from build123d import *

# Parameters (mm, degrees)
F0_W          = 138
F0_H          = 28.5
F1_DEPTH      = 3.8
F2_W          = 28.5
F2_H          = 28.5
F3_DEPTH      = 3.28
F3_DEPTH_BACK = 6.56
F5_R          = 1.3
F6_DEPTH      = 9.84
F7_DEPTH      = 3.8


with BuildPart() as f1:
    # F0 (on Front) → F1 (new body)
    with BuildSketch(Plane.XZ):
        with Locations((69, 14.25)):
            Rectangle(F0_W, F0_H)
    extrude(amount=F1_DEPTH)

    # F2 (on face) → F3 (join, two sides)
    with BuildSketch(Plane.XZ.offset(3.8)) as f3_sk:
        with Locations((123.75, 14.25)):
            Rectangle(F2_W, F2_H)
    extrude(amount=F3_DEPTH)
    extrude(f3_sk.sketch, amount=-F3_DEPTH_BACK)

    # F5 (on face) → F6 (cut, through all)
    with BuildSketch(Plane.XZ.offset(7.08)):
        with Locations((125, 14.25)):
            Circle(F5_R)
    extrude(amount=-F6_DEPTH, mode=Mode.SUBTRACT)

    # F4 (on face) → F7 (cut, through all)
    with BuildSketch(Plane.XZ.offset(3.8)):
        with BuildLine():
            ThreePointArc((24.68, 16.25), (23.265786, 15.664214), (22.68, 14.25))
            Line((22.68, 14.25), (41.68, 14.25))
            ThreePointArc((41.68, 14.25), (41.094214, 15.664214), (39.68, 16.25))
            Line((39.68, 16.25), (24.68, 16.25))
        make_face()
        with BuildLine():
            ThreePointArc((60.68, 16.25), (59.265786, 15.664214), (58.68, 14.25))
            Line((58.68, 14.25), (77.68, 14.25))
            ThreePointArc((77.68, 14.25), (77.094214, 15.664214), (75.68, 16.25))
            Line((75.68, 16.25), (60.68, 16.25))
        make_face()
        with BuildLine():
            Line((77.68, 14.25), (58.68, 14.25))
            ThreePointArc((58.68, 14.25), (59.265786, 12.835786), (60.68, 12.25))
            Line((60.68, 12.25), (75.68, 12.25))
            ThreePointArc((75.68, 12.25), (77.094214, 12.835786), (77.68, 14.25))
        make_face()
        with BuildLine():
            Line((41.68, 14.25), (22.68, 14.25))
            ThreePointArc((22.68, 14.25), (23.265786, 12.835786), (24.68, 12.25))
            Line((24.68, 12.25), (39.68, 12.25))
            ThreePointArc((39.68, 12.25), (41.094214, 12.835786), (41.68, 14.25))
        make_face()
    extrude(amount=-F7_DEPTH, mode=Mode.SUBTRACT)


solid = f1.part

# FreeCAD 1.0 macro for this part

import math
import FreeCAD as App
import Part
import Sketcher
from FreeCAD import Vector

doc = App.newDocument("Part")
body = doc.addObject("PartDesign::Body", "Body")

sketch1 = doc.addObject("Sketcher::SketchObject", "Sketch")
body.addObject(sketch1)
sketch1.AttachmentSupport = (doc.XZ_Plane, [""])
sketch1.MapMode = "FlatFace"
sketch1.addGeometry([
    Part.LineSegment(Vector(0, 28.5, 0), Vector(0, 0, 0)),
    Part.LineSegment(Vector(0, 0, 0), Vector(138, 0, 0)),
    Part.LineSegment(Vector(138, 0, 0), Vector(138, 28.5, 0)),
    Part.LineSegment(Vector(138, 28.5, 0), Vector(0, 28.5, 0)),
], False)
sketch1.addConstraint([
    Sketcher.Constraint("Coincident", 0, 2, 1, 1),
    Sketcher.Constraint("Coincident", 1, 2, 2, 1),
    Sketcher.Constraint("Coincident", 2, 2, 3, 1),
    Sketcher.Constraint("Coincident", 3, 2, 0, 1),
    Sketcher.Constraint("Vertical", 0),
    Sketcher.Constraint("Horizontal", 1),
    Sketcher.Constraint("Vertical", 2),
    Sketcher.Constraint("Horizontal", 3),
    Sketcher.Constraint("Coincident", 0, 2, -1, 1),
    Sketcher.Constraint("DistanceX", 1, 1, 1, 2, 138.0),
    Sketcher.Constraint("DistanceY", 0, 2, 0, 1, 28.5),
])
pad1 = doc.addObject("PartDesign::Pad", "Pad")
body.addObject(pad1)
pad1.Profile = sketch1
pad1.Length = 3.8

sketch2 = doc.addObject("Sketcher::SketchObject", "Sketch001")
body.addObject(sketch2)
sketch2.AttachmentSupport = (doc.XZ_Plane, [""])
sketch2.MapMode = "FlatFace"
sketch2.AttachmentOffset = App.Placement(Vector(0, 0, 3.8), App.Rotation())
sketch2.addGeometry([
    Part.LineSegment(Vector(109.5, 28.5, 0), Vector(109.5, 0, 0)),
    Part.LineSegment(Vector(109.5, 0, 0), Vector(138, 0, 0)),
    Part.LineSegment(Vector(138, 0, 0), Vector(138, 28.5, 0)),
    Part.LineSegment(Vector(138, 28.5, 0), Vector(109.5, 28.5, 0)),
], False)
sketch2.addConstraint([
    Sketcher.Constraint("Coincident", 0, 2, 1, 1),
    Sketcher.Constraint("Coincident", 1, 2, 2, 1),
    Sketcher.Constraint("Coincident", 2, 2, 3, 1),
    Sketcher.Constraint("Coincident", 3, 2, 0, 1),
    Sketcher.Constraint("Vertical", 0),
    Sketcher.Constraint("Horizontal", 1),
    Sketcher.Constraint("Vertical", 2),
    Sketcher.Constraint("Horizontal", 3),
    Sketcher.Constraint("PointOnObject", 0, 2, -1),
    Sketcher.Constraint("Equal", 3, 0),
    Sketcher.Constraint("DistanceX", 1, 1, 1, 2, 28.5),
    Sketcher.Constraint("DistanceX", -1, 1, 1, 2, 138.0),
])
pad2 = doc.addObject("PartDesign::Pad", "Pad001")
body.addObject(pad2)
pad2.Profile = sketch2
pad2.Type = "TwoLengths"
pad2.Length = 3.28
pad2.Length2 = 6.56

sketch3 = doc.addObject("Sketcher::SketchObject", "Sketch002")
body.addObject(sketch3)
sketch3.AttachmentSupport = (doc.XZ_Plane, [""])
sketch3.MapMode = "FlatFace"
sketch3.AttachmentOffset = App.Placement(Vector(0, 0, 7.08), App.Rotation())
sketch3.addGeometry(Part.Circle(Vector(125, 14.25, 0), Vector(0, 0, 1), 1.3), False)
sketch3.addConstraint([
    Sketcher.Constraint("Diameter", 0, 2.6),
    Sketcher.Constraint("DistanceX", -1, 1, 0, 3, 125.0),
    Sketcher.Constraint("DistanceY", -1, 1, 0, 3, 14.25),
])
pocket1 = doc.addObject("PartDesign::Pocket", "Pocket")
body.addObject(pocket1)
pocket1.Profile = sketch3
pocket1.Type = "ThroughAll"

sketch4 = doc.addObject("Sketcher::SketchObject", "Sketch003")
body.addObject(sketch4)
sketch4.AttachmentSupport = (doc.XZ_Plane, [""])
sketch4.MapMode = "FlatFace"
sketch4.AttachmentOffset = App.Placement(Vector(0, 0, 3.8), App.Rotation())
sketch4.addGeometry([
    Part.ArcOfCircle(Part.Circle(Vector(24.679999, 14.250001, 0), Vector(0, 0, 1), 1.999999), math.radians(89.999957), math.radians(180.000043)),
    Part.ArcOfCircle(Part.Circle(Vector(24.679999, 14.249999, 0), Vector(0, 0, 1), 1.999999), math.radians(179.999957), math.radians(270.000043)),
    Part.LineSegment(Vector(24.68, 12.25, 0), Vector(39.68, 12.25, 0)),
    Part.ArcOfCircle(Part.Circle(Vector(39.680001, 14.249999, 0), Vector(0, 0, 1), 1.999999), math.radians(-90.000043), math.radians(0.000043)),
    Part.ArcOfCircle(Part.Circle(Vector(39.680001, 14.250001, 0), Vector(0, 0, 1), 1.999999), math.radians(-0.000043), math.radians(90.000043)),
    Part.LineSegment(Vector(39.68, 16.25, 0), Vector(24.68, 16.25, 0)),
    Part.ArcOfCircle(Part.Circle(Vector(60.679999, 14.250001, 0), Vector(0, 0, 1), 1.999999), math.radians(89.999957), math.radians(180.000043)),
    Part.ArcOfCircle(Part.Circle(Vector(60.679999, 14.249999, 0), Vector(0, 0, 1), 1.999999), math.radians(179.999957), math.radians(270.000043)),
    Part.LineSegment(Vector(60.68, 12.25, 0), Vector(75.68, 12.25, 0)),
    Part.ArcOfCircle(Part.Circle(Vector(75.680001, 14.249999, 0), Vector(0, 0, 1), 1.999999), math.radians(-90.000043), math.radians(0.000043)),
    Part.ArcOfCircle(Part.Circle(Vector(75.680001, 14.250001, 0), Vector(0, 0, 1), 1.999999), math.radians(-0.000043), math.radians(90.000043)),
    Part.LineSegment(Vector(75.68, 16.25, 0), Vector(60.68, 16.25, 0)),
], False)
sketch4.addConstraint([
    Sketcher.Constraint("Tangent", 0, 2, 1, 1),
    Sketcher.Constraint("Tangent", 1, 2, 2, 1),
    Sketcher.Constraint("Tangent", 2, 2, 3, 1),
    Sketcher.Constraint("Tangent", 3, 2, 4, 1),
    Sketcher.Constraint("Tangent", 4, 2, 5, 1),
    Sketcher.Constraint("Tangent", 5, 2, 0, 1),
    Sketcher.Constraint("Tangent", 6, 2, 7, 1),
    Sketcher.Constraint("Tangent", 7, 2, 8, 1),
    Sketcher.Constraint("Tangent", 8, 2, 9, 1),
    Sketcher.Constraint("Tangent", 9, 2, 10, 1),
    Sketcher.Constraint("Tangent", 10, 2, 11, 1),
    Sketcher.Constraint("Tangent", 11, 2, 6, 1),
    Sketcher.Constraint("Horizontal", 2),
    Sketcher.Constraint("Horizontal", 5),
    Sketcher.Constraint("Horizontal", 8),
    Sketcher.Constraint("Horizontal", 11),
    Sketcher.Constraint("Equal", 0, 1),
    Sketcher.Constraint("Equal", 1, 3),
    Sketcher.Constraint("Equal", 4, 6),
    Sketcher.Constraint("Equal", 6, 7),
    Sketcher.Constraint("Equal", 7, 9),
    Sketcher.Constraint("Horizontal", 4, 3, 6, 3),
    Sketcher.Constraint("Horizontal", 10, 3, 0, 2),
    Sketcher.Constraint("Horizontal", 0, 2, 3, 2),
    Sketcher.Constraint("Horizontal", 3, 2, 6, 2),
    Sketcher.Constraint("Horizontal", 6, 2, 9, 2),
    Sketcher.Constraint("Equal", 5, 8),
    Sketcher.Constraint("Radius", 0, 1.999999),
    Sketcher.Constraint("DistanceX", 2, 1, 2, 2, 15.0),
    Sketcher.Constraint("DistanceX", 0, 3, 6, 3, 36.0),
    Sketcher.Constraint("DistanceX", -1, 1, 0, 3, 24.679999),
    Sketcher.Constraint("DistanceY", -1, 1, 0, 3, 14.250001),
])
pocket2 = doc.addObject("PartDesign::Pocket", "Pocket001")
body.addObject(pocket2)
pocket2.Profile = sketch4
pocket2.Type = "ThroughAll"

doc.recompute()
